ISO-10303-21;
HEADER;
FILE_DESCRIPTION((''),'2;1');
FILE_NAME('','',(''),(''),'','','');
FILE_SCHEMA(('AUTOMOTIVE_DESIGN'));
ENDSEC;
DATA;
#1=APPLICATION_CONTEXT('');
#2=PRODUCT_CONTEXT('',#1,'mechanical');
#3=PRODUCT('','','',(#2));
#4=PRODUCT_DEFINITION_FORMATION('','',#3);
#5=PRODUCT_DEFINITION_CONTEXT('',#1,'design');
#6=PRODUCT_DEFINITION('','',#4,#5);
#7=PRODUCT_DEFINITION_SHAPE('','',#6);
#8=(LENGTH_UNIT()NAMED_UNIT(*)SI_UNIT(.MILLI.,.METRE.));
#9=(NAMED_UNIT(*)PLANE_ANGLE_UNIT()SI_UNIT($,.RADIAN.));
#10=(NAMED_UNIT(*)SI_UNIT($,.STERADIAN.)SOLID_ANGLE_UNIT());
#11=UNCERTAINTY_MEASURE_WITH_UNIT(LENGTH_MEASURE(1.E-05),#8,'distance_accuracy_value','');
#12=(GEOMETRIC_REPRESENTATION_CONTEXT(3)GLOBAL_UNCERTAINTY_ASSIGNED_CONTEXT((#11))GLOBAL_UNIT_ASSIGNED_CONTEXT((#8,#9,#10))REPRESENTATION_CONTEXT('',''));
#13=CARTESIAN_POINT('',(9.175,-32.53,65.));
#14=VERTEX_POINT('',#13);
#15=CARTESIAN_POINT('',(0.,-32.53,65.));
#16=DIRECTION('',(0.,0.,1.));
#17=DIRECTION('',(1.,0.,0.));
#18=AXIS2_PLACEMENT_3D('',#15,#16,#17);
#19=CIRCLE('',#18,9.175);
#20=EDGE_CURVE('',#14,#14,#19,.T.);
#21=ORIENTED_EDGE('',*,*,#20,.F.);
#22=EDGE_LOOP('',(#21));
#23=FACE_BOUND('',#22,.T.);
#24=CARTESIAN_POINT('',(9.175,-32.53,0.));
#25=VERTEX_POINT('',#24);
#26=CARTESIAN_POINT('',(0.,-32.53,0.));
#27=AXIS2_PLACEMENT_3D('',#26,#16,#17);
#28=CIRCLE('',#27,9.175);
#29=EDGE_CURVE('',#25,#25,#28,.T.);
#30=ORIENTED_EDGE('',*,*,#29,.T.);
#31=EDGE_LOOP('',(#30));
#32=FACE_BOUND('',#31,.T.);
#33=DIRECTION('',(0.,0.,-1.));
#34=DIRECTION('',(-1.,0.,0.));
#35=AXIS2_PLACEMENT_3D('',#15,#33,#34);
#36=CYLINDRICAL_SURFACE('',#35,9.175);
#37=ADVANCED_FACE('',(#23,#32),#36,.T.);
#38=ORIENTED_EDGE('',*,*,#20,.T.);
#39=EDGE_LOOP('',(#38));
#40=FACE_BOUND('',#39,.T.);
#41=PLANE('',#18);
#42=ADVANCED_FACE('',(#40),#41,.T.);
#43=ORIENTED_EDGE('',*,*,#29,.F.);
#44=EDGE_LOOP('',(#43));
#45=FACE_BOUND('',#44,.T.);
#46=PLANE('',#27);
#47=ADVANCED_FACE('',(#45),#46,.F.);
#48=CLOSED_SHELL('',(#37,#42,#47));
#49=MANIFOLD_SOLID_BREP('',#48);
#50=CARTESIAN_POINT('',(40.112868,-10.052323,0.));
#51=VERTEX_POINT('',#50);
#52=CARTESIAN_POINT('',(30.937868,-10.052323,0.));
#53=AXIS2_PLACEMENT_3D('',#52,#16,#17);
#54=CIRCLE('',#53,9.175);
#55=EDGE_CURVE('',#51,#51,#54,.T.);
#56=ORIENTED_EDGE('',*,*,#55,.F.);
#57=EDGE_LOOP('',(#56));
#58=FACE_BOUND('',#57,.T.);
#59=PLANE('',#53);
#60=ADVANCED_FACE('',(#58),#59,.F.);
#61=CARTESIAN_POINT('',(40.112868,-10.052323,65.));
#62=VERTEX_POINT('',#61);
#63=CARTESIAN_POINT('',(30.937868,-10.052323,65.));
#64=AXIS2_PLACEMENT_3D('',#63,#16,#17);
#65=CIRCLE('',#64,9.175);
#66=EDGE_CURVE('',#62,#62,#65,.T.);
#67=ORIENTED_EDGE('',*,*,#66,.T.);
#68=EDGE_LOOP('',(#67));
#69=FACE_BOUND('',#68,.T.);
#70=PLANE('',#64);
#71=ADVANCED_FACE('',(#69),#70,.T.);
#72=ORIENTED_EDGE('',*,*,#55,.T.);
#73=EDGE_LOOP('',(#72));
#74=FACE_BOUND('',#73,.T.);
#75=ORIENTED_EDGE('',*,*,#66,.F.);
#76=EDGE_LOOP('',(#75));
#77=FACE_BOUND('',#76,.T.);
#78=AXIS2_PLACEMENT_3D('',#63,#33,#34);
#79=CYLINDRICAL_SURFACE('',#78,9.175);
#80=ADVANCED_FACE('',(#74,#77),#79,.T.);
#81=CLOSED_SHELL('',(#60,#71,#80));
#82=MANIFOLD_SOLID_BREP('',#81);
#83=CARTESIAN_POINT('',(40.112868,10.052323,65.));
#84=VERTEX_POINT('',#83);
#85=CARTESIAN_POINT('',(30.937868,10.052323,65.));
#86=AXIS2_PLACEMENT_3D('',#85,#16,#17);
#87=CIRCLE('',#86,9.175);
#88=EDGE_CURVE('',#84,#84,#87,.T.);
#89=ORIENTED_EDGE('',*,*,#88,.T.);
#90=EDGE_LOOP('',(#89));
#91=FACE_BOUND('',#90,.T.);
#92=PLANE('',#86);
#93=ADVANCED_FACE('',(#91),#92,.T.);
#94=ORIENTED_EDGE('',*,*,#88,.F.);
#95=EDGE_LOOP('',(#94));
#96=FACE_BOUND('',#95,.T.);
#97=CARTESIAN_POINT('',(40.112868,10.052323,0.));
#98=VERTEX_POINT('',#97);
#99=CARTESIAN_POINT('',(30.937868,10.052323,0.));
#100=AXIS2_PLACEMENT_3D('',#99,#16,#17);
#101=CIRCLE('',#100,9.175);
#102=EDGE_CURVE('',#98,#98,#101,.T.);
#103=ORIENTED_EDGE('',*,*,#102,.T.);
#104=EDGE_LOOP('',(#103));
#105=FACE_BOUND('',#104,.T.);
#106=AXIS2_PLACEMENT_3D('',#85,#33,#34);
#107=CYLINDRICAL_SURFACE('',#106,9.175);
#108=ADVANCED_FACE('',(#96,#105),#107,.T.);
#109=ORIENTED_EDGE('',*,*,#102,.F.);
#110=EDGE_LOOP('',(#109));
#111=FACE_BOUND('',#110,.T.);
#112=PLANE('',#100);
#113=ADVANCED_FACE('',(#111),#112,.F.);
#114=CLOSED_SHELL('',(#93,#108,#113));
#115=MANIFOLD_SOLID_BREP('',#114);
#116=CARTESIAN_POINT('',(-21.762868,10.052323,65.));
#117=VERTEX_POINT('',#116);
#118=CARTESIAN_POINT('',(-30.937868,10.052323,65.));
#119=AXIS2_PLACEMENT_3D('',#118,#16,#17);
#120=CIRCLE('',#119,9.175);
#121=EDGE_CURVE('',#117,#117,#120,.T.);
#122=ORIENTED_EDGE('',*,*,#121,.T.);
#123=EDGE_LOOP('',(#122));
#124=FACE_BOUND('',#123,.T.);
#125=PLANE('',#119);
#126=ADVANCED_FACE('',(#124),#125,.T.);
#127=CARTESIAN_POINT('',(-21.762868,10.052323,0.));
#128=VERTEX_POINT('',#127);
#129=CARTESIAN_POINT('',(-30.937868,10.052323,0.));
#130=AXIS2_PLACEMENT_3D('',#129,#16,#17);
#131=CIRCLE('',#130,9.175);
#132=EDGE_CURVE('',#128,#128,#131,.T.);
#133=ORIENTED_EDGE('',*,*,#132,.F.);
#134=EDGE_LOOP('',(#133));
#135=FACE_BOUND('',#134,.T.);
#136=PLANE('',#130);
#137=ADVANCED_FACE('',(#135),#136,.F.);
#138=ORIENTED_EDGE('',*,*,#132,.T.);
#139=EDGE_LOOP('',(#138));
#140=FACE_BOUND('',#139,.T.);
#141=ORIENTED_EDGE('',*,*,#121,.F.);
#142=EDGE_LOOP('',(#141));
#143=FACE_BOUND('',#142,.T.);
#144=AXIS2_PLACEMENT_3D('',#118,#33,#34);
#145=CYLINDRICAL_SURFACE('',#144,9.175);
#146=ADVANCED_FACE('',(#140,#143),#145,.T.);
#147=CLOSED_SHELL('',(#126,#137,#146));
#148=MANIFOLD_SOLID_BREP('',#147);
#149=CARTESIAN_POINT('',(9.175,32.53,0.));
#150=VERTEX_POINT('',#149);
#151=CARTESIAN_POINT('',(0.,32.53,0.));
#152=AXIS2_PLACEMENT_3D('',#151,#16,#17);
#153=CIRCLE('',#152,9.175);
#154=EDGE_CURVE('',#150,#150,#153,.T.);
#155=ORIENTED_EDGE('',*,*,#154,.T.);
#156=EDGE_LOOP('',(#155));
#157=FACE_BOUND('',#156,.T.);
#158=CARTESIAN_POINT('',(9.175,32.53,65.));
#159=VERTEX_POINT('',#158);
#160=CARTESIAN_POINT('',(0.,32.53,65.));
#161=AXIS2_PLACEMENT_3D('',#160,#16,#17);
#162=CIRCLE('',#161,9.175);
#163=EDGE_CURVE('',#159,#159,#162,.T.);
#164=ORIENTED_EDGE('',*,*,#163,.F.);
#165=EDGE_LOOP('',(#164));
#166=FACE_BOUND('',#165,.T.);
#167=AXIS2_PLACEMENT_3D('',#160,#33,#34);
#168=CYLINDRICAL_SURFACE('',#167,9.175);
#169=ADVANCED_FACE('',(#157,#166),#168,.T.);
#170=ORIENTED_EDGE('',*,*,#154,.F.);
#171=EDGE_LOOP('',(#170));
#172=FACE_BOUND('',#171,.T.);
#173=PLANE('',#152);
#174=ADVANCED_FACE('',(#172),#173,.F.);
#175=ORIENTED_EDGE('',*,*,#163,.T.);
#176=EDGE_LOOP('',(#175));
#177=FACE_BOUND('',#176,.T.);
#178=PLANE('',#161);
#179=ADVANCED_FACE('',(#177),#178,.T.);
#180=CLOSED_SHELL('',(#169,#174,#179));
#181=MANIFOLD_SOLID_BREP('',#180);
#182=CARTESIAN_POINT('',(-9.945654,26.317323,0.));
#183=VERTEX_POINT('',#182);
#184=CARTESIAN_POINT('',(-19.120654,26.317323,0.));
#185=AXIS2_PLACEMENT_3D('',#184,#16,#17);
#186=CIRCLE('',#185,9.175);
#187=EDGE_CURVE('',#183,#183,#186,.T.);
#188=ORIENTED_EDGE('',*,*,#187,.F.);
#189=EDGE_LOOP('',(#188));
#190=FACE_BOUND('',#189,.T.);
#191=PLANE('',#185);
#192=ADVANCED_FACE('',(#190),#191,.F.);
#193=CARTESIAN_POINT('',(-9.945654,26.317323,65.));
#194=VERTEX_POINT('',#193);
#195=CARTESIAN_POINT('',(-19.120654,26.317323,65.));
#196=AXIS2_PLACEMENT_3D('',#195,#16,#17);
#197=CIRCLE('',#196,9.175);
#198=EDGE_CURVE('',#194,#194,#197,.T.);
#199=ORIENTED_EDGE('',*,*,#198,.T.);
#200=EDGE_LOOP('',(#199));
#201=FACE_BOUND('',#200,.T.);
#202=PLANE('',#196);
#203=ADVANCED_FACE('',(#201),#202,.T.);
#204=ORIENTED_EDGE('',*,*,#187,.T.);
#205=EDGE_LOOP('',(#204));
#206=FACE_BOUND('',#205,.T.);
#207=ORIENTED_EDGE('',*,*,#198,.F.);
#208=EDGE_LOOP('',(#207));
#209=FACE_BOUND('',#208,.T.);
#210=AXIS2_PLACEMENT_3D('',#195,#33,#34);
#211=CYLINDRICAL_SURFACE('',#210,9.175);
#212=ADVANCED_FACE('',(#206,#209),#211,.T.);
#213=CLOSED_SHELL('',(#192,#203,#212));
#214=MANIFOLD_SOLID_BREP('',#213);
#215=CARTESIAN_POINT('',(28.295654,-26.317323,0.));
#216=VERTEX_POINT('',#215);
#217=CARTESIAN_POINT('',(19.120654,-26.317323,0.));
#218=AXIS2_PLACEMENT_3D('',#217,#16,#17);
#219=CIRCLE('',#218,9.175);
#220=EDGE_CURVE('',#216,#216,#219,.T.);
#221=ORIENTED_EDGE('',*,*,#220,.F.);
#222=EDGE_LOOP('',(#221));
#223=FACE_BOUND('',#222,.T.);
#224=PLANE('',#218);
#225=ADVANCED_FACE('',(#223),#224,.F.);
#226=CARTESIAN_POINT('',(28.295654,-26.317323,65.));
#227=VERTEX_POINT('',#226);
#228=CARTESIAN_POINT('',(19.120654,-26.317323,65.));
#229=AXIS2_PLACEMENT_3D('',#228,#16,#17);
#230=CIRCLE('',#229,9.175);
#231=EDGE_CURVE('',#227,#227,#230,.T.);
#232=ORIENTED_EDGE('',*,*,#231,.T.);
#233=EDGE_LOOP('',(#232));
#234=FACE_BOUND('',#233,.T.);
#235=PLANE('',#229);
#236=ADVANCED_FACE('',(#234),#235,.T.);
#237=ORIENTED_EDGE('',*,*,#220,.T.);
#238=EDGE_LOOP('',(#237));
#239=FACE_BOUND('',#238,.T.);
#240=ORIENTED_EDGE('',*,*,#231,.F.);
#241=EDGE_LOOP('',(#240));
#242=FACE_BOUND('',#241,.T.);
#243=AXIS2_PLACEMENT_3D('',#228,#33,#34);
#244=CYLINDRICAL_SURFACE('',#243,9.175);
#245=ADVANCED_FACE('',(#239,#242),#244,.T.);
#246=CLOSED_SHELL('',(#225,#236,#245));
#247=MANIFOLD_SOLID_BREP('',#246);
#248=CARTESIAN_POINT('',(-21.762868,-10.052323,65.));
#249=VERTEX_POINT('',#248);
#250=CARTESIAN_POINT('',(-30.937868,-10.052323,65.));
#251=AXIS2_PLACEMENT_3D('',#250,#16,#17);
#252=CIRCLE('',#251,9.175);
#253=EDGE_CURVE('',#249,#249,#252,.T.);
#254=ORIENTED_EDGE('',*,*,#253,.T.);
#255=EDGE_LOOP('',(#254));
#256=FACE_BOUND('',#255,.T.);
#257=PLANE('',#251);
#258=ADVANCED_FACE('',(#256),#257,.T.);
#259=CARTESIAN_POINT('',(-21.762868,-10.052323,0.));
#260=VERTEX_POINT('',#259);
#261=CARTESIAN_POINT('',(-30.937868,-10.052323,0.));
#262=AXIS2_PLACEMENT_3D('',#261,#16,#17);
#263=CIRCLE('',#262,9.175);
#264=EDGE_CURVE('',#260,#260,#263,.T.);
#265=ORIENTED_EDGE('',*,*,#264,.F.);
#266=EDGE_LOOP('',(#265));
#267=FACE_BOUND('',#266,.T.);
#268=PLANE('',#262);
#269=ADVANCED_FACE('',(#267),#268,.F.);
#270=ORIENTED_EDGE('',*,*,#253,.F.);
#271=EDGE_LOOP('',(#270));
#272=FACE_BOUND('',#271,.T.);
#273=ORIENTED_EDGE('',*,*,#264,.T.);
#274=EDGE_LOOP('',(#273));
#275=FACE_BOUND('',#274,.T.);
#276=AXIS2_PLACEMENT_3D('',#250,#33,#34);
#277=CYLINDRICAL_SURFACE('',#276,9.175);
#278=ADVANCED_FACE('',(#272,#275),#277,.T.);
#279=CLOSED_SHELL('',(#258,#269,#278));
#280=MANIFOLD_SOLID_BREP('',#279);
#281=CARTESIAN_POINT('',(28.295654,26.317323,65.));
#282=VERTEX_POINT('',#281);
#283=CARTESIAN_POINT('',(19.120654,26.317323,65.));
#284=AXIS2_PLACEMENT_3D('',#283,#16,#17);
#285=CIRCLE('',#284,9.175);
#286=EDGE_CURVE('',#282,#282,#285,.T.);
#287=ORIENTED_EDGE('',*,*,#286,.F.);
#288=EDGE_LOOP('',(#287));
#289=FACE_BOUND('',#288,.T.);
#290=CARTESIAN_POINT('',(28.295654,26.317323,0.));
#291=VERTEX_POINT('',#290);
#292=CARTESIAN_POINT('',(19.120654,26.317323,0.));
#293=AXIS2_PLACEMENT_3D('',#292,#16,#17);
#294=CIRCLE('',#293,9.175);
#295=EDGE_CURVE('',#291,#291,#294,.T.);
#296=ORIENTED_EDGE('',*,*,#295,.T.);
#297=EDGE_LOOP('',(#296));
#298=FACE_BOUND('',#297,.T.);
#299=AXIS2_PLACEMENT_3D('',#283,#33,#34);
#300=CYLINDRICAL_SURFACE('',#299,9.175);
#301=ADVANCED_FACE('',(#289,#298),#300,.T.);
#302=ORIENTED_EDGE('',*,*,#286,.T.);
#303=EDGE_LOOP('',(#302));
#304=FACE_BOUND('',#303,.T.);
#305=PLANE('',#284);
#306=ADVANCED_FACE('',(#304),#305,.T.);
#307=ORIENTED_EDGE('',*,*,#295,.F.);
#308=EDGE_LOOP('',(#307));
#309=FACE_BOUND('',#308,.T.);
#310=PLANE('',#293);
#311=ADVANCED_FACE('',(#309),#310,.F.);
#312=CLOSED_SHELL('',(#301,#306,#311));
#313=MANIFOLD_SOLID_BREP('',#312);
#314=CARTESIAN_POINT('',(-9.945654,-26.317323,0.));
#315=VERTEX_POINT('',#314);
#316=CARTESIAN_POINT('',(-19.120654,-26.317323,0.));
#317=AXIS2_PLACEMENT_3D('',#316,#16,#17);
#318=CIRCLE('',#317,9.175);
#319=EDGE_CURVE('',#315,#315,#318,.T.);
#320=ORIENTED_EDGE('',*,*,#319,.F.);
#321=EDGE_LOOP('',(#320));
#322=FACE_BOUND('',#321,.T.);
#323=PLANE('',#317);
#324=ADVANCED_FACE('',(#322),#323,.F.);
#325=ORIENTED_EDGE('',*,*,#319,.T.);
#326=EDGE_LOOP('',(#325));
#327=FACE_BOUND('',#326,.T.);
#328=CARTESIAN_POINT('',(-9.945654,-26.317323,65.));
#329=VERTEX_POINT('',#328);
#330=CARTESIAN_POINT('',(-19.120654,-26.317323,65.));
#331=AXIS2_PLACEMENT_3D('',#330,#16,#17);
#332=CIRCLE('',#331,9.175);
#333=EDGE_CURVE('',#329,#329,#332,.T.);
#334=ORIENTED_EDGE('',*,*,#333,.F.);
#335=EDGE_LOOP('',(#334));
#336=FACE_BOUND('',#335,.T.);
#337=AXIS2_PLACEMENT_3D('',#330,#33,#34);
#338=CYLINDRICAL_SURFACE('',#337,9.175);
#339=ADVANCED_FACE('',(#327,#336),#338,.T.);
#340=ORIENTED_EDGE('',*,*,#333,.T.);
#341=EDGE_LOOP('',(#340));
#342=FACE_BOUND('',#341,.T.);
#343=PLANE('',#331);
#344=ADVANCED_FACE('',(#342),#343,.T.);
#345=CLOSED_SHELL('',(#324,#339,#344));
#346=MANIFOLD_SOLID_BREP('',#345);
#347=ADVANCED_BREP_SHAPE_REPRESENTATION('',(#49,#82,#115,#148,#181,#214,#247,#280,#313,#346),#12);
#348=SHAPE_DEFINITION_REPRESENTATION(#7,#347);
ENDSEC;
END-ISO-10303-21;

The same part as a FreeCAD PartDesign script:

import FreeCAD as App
import Part
import Sketcher

V = App.Vector
Q = App.Units.Quantity

doc = App.newDocument("Part")
body = doc.addObject("PartDesign::Body", "Body")

# Sketch on XY plane
sketch1 = body.newObject("Sketcher::SketchObject", "Sketch")
sketch1.AttachmentSupport = (doc.getObject("XY_Plane"), [""])
sketch1.MapMode = "FlatFace"
sketch1.addGeometry(Part.Circle(V(0, -33, 0), V(0, 0, 1), 9), False)
sketch1.addConstraint([
    Sketcher.Constraint("PointOnObject", 0, 3, -2),
    Sketcher.Constraint("Diameter", 0, Q("18.35 mm")),
    Sketcher.Constraint("DistanceY", 0, 3, -1, 1, Q("32.53 mm")),
])
pad1 = body.newObject("PartDesign::Pad", "Pad")
pad1.Profile = sketch1
pad1.Length = 65
body2 = doc.addObject("PartDesign::Body", "Body001")

# Sketch on XY plane
sketch2 = body2.newObject("Sketcher::SketchObject", "Sketch001")
sketch2.AttachmentSupport = (doc.getObject("XY_Plane001"), [""])
sketch2.MapMode = "FlatFace"
sketch2.addGeometry(Part.Circle(V(-19, -26, 0), V(0, 0, 1), 9), False)
sketch2.addConstraint([
    Sketcher.Constraint("Diameter", 0, Q("18.35 mm")),
    Sketcher.Constraint("DistanceX", 0, 3, -1, 1, Q("19.120654 mm")),
    Sketcher.Constraint("DistanceY", 0, 3, -1, 1, Q("26.317323 mm")),
])
pad2 = body2.newObject("PartDesign::Pad", "Pad001")
pad2.Profile = sketch2
pad2.Length = 65
body3 = doc.addObject("PartDesign::Body", "Body002")

# Sketch on XY plane
sketch3 = body3.newObject("Sketcher::SketchObject", "Sketch002")
sketch3.AttachmentSupport = (doc.getObject("XY_Plane002"), [""])
sketch3.MapMode = "FlatFace"
sketch3.addGeometry(Part.Circle(V(-31, -10, 0), V(0, 0, 1), 9), False)
sketch3.addConstraint([
    Sketcher.Constraint("Diameter", 0, Q("18.35 mm")),
    Sketcher.Constraint("DistanceX", 0, 3, -1, 1, Q("30.937868 mm")),
    Sketcher.Constraint("DistanceY", 0, 3, -1, 1, Q("10.052323 mm")),
])
pad3 = body3.newObject("PartDesign::Pad", "Pad002")
pad3.Profile = sketch3
pad3.Length = 65
body4 = doc.addObject("PartDesign::Body", "Body003")

# Sketch on XY plane
sketch4 = body4.newObject("Sketcher::SketchObject", "Sketch003")
sketch4.AttachmentSupport = (doc.getObject("XY_Plane003"), [""])
sketch4.MapMode = "FlatFace"
sketch4.addGeometry(Part.Circle(V(-31, 10, 0), V(0, 0, 1), 9), False)
sketch4.addConstraint([
    Sketcher.Constraint("Diameter", 0, Q("18.35 mm")),
    Sketcher.Constraint("DistanceX", 0, 3, -1, 1, Q("30.937868 mm")),
    Sketcher.Constraint("DistanceY", -1, 1, 0, 3, Q("10.052323 mm")),
])
pad4 = body4.newObject("PartDesign::Pad", "Pad003")
pad4.Profile = sketch4
pad4.Length = 65
body5 = doc.addObject("PartDesign::Body", "Body004")

# Sketch on XY plane
sketch5 = body5.newObject("Sketcher::SketchObject", "Sketch004")
sketch5.AttachmentSupport = (doc.getObject("XY_Plane004"), [""])
sketch5.MapMode = "FlatFace"
sketch5.addGeometry(Part.Circle(V(-19, 26, 0), V(0, 0, 1), 9), False)
sketch5.addConstraint([
    Sketcher.Constraint("Diameter", 0, Q("18.35 mm")),
    Sketcher.Constraint("DistanceX", 0, 3, -1, 1, Q("19.120654 mm")),
    Sketcher.Constraint("DistanceY", -1, 1, 0, 3, Q("26.317323 mm")),
])
pad5 = body5.newObject("PartDesign::Pad", "Pad004")
pad5.Profile = sketch5
pad5.Length = 65
body6 = doc.addObject("PartDesign::Body", "Body005")

# Sketch on XY plane
sketch6 = body6.newObject("Sketcher::SketchObject", "Sketch005")
sketch6.AttachmentSupport = (doc.getObject("XY_Plane005"), [""])
sketch6.MapMode = "FlatFace"
sketch6.addGeometry(Part.Circle(V(0, 33, 0), V(0, 0, 1), 9), False)
sketch6.addConstraint([
    Sketcher.Constraint("PointOnObject", 0, 3, -2),
    Sketcher.Constraint("Diameter", 0, Q("18.35 mm")),
    Sketcher.Constraint("DistanceY", -1, 1, 0, 3, Q("32.53 mm")),
])
pad6 = body6.newObject("PartDesign::Pad", "Pad005")
pad6.Profile = sketch6
pad6.Length = 65
body7 = doc.addObject("PartDesign::Body", "Body006")

# Sketch on XY plane
sketch7 = body7.newObject("Sketcher::SketchObject", "Sketch006")
sketch7.AttachmentSupport = (doc.getObject("XY_Plane006"), [""])
sketch7.MapMode = "FlatFace"
sketch7.addGeometry(Part.Circle(V(19, 26, 0), V(0, 0, 1), 9), False)
sketch7.addConstraint([
    Sketcher.Constraint("Diameter", 0, Q("18.35 mm")),
    Sketcher.Constraint("DistanceX", -1, 1, 0, 3, Q("19.120654 mm")),
    Sketcher.Constraint("DistanceY", -1, 1, 0, 3, Q("26.317323 mm")),
])
pad7 = body7.newObject("PartDesign::Pad", "Pad006")
pad7.Profile = sketch7
pad7.Length = 65
body8 = doc.addObject("PartDesign::Body", "Body007")

# Sketch on XY plane
sketch8 = body8.newObject("Sketcher::SketchObject", "Sketch007")
sketch8.AttachmentSupport = (doc.getObject("XY_Plane007"), [""])
sketch8.MapMode = "FlatFace"
sketch8.addGeometry(Part.Circle(V(31, 10, 0), V(0, 0, 1), 9), False)
sketch8.addConstraint([
    Sketcher.Constraint("Diameter", 0, Q("18.35 mm")),
    Sketcher.Constraint("DistanceX", -1, 1, 0, 3, Q("30.937868 mm")),
    Sketcher.Constraint("DistanceY", -1, 1, 0, 3, Q("10.052323 mm")),
])
pad8 = body8.newObject("PartDesign::Pad", "Pad007")
pad8.Profile = sketch8
pad8.Length = 65
body9 = doc.addObject("PartDesign::Body", "Body008")

# Sketch on XY plane
sketch9 = body9.newObject("Sketcher::SketchObject", "Sketch008")
sketch9.AttachmentSupport = (doc.getObject("XY_Plane008"), [""])
sketch9.MapMode = "FlatFace"
sketch9.addGeometry(Part.Circle(V(31, -10, 0), V(0, 0, 1), 9), False)
sketch9.addConstraint([
    Sketcher.Constraint("Diameter", 0, Q("18.35 mm")),
    Sketcher.Constraint("DistanceX", -1, 1, 0, 3, Q("30.937868 mm")),
    Sketcher.Constraint("DistanceY", 0, 3, -1, 1, Q("10.052323 mm")),
])
pad9 = body9.newObject("PartDesign::Pad", "Pad008")
pad9.Profile = sketch9
pad9.Length = 65
body10 = doc.addObject("PartDesign::Body", "Body009")

# Sketch on XY plane
sketch10 = body10.newObject("Sketcher::SketchObject", "Sketch009")
sketch10.AttachmentSupport = (doc.getObject("XY_Plane009"), [""])
sketch10.MapMode = "FlatFace"
sketch10.addGeometry(Part.Circle(V(19, -26, 0), V(0, 0, 1), 9), False)
sketch10.addConstraint([
    Sketcher.Constraint("Diameter", 0, Q("18.35 mm")),
    Sketcher.Constraint("DistanceX", -1, 1, 0, 3, Q("19.120654 mm")),
    Sketcher.Constraint("DistanceY", 0, 3, -1, 1, Q("26.317323 mm")),
])
pad10 = body10.newObject("PartDesign::Pad", "Pad009")
pad10.Profile = sketch10
pad10.Length = 65

doc.recompute()
